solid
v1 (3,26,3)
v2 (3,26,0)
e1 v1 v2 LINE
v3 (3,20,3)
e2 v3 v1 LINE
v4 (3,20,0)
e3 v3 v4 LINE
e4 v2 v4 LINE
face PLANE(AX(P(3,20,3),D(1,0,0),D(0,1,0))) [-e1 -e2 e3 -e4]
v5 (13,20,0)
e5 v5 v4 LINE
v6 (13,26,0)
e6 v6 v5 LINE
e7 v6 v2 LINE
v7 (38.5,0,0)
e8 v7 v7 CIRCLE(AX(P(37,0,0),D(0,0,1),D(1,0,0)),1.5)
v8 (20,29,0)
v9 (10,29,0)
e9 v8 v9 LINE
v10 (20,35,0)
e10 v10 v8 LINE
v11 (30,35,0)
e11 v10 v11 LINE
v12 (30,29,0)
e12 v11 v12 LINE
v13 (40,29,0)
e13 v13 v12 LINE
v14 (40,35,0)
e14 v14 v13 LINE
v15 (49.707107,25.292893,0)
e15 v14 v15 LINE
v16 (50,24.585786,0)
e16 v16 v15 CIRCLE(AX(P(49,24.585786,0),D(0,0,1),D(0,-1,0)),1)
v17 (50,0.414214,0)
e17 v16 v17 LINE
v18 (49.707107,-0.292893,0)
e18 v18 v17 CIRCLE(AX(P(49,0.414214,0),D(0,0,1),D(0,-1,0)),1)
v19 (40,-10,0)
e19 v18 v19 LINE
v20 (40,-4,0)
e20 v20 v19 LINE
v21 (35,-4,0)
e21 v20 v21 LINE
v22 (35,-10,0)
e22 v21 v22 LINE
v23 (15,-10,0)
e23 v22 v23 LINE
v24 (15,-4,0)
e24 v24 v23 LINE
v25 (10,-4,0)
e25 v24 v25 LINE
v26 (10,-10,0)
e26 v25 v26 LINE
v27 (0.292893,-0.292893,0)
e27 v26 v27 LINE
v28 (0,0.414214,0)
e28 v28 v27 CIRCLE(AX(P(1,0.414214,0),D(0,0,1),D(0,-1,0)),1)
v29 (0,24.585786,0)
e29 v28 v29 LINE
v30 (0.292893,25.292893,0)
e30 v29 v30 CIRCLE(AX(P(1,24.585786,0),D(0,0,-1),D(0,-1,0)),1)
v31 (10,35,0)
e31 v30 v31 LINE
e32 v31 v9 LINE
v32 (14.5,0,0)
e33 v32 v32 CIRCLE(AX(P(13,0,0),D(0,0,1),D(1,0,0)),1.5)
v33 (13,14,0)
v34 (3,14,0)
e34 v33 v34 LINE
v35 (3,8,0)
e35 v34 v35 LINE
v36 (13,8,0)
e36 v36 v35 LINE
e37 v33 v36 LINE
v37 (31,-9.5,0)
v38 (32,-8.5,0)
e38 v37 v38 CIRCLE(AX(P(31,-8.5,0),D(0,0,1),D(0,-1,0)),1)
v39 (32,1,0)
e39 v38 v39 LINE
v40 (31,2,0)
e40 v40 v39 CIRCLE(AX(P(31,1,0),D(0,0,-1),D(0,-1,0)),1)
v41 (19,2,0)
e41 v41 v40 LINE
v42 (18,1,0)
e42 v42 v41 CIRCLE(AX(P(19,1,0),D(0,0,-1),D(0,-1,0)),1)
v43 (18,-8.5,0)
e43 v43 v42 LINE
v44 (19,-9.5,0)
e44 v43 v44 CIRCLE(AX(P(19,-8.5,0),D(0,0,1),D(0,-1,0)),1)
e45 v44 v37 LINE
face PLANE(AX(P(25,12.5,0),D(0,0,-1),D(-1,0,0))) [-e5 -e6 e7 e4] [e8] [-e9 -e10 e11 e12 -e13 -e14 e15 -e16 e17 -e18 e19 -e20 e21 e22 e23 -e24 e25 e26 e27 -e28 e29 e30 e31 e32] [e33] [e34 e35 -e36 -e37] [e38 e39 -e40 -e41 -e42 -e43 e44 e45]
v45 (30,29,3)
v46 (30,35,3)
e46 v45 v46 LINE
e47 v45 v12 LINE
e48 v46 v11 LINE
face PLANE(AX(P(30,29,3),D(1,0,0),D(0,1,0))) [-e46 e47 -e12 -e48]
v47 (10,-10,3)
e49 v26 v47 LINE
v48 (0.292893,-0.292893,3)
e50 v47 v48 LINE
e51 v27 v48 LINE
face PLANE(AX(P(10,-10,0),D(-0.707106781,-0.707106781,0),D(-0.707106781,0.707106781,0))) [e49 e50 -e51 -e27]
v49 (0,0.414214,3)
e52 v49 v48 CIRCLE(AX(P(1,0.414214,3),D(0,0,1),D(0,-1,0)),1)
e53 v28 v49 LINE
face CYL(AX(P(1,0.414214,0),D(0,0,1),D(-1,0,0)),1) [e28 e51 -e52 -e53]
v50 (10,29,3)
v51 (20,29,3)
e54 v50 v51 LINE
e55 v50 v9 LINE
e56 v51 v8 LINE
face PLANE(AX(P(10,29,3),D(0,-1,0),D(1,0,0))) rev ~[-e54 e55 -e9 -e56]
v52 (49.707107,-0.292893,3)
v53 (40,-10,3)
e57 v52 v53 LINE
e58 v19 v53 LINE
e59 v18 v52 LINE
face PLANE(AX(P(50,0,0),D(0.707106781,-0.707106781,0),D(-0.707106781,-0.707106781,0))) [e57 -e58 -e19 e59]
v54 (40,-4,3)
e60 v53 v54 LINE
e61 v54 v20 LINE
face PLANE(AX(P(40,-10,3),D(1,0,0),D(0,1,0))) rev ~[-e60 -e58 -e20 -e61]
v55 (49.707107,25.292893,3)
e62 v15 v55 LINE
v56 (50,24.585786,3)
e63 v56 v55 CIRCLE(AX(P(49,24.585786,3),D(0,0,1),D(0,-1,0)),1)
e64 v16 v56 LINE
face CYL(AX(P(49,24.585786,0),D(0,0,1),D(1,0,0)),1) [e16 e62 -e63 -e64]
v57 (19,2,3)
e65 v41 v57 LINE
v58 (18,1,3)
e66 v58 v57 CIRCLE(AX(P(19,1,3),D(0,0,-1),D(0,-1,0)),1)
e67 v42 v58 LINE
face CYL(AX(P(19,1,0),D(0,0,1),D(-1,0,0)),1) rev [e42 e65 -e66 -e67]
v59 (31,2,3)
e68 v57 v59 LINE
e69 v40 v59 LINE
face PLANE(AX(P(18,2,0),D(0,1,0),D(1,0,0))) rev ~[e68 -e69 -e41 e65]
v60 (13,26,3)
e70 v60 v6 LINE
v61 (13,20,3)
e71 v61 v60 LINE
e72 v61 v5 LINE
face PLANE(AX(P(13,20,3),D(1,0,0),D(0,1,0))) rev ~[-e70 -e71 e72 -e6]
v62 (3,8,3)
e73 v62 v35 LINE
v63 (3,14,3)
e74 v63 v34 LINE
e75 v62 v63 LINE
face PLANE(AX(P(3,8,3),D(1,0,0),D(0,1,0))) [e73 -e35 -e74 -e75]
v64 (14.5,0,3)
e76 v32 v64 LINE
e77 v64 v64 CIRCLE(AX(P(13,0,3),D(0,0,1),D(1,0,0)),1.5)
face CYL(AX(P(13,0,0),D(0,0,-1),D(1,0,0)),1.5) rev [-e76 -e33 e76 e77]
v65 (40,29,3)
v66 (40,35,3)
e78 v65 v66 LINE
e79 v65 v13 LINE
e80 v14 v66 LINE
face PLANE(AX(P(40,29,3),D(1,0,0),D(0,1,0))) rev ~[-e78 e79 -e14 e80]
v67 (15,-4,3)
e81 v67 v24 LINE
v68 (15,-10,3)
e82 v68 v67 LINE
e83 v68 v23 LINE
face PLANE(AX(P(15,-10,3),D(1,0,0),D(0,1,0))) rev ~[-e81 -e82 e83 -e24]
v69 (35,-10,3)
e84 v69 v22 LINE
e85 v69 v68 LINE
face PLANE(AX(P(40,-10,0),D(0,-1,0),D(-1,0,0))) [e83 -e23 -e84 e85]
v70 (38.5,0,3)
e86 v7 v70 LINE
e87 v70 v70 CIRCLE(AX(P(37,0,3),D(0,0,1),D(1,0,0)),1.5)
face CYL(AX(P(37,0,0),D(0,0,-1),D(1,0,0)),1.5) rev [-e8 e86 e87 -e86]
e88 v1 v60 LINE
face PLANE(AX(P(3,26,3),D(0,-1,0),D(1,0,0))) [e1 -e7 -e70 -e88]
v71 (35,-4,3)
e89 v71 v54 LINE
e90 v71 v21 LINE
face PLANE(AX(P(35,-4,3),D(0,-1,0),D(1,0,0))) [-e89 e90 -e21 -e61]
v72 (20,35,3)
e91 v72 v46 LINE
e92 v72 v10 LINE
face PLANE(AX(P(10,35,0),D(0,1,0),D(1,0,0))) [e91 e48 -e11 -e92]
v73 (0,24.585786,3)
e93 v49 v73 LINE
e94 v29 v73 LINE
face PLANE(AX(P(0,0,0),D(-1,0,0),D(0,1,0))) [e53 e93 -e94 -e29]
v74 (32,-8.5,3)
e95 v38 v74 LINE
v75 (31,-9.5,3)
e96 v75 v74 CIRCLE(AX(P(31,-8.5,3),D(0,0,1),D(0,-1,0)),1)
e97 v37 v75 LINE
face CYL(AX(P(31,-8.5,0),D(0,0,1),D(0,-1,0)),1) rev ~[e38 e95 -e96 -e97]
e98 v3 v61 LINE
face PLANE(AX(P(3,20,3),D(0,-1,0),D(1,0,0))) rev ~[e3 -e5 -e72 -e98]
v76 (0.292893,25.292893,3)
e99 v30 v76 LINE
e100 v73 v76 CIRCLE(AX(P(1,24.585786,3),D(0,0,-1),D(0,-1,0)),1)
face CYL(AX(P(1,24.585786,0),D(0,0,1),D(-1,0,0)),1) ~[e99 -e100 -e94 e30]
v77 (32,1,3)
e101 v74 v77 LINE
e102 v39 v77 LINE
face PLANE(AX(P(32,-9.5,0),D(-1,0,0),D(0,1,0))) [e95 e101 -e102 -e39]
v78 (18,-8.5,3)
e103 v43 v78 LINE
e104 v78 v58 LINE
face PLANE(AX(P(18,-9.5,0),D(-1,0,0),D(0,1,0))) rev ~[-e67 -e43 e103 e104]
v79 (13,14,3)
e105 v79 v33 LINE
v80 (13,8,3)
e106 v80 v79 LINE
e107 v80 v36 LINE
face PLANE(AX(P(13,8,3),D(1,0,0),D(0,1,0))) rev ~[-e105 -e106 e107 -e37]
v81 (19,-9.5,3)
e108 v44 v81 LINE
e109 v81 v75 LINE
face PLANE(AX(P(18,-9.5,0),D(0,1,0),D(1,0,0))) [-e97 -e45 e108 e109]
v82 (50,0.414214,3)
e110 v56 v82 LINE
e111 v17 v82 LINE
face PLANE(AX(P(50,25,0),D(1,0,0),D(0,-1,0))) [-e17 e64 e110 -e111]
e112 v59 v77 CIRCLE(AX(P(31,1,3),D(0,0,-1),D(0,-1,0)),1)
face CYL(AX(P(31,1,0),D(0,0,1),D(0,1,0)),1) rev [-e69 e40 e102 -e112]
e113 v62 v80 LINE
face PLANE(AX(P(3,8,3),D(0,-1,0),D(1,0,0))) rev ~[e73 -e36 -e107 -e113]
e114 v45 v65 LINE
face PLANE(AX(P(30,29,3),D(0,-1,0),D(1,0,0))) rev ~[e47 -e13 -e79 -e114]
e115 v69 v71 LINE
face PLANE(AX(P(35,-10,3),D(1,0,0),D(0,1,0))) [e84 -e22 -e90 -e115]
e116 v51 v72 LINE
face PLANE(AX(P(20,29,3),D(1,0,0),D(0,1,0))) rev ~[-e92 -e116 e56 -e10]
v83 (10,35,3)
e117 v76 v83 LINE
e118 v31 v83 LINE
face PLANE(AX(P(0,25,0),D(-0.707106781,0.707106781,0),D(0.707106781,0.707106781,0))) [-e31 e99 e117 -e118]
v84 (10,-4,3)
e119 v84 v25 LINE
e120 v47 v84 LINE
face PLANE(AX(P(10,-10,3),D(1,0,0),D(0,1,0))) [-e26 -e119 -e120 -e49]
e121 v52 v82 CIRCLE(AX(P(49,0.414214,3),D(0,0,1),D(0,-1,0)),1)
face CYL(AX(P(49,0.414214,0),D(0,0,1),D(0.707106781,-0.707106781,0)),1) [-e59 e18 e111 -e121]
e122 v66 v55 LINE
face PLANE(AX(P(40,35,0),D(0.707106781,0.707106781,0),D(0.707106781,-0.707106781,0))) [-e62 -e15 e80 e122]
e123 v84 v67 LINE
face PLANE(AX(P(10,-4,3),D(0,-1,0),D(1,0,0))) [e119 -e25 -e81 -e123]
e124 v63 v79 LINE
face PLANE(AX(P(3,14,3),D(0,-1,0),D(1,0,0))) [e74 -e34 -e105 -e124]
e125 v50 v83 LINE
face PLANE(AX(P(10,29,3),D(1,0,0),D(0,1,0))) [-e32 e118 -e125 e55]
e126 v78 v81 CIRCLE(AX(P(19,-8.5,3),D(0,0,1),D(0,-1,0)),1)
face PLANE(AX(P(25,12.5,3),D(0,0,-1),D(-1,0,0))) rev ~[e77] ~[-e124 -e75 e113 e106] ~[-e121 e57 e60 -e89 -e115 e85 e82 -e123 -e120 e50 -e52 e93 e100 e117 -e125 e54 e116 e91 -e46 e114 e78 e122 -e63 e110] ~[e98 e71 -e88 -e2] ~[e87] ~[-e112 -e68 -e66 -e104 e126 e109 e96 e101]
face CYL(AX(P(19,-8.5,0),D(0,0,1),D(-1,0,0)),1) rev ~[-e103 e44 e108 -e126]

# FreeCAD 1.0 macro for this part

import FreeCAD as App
import Part
import Sketcher


def edges_at(feature, points):
    """Names of the edges that pass closest to the given points."""
    edges = feature.Shape.Edges
    near = lambda p: min(range(len(edges)), key=lambda i: edges[i].distToShape(Part.Vertex(*p))[0])
    return sorted({f"Edge{near(p) + 1}" for p in points})

doc = App.newDocument("Part")
body = doc.addObject("PartDesign::Body", "Body")

sketch1 = doc.addObject("Sketcher::SketchObject", "Sketch")
body.addObject(sketch1)
sketch1.AttachmentSupport = (doc.XY_Plane, [""])
sketch1.MapMode = "FlatFace"
sketch1.addGeometry([
    Part.LineSegment(App.Vector(0, 25, 0), App.Vector(0, 0, 0)),
    Part.LineSegment(App.Vector(0, 0, 0), App.Vector(10, -10, 0)),
    Part.LineSegment(App.Vector(10, -10, 0), App.Vector(40, -10, 0)),
    Part.LineSegment(App.Vector(40, -10, 0), App.Vector(50, 0, 0)),
    Part.LineSegment(App.Vector(50, 0, 0), App.Vector(50, 25, 0)),
    Part.LineSegment(App.Vector(50, 25, 0), App.Vector(40, 35, 0)),
    Part.LineSegment(App.Vector(40, 35, 0), App.Vector(10, 35, 0)),
    Part.LineSegment(App.Vector(10, 35, 0), App.Vector(0, 25, 0)),
    Part.LineSegment(App.Vector(18, -9.5, 0), App.Vector(18, 2, 0)),
    Part.LineSegment(App.Vector(18, 2, 0), App.Vector(32, 2, 0)),
    Part.LineSegment(App.Vector(32, 2, 0), App.Vector(32, -9.5, 0)),
    Part.LineSegment(App.Vector(32, -9.5, 0), App.Vector(18, -9.5, 0)),
    Part.Circle(App.Vector(37, 0, 0), App.Vector(0, 0, 1), 1.5),
    Part.Circle(App.Vector(13, 0, 0), App.Vector(0, 0, 1), 1.5),
], False)
sketch1.addConstraint([
    Sketcher.Constraint("Coincident", 0, 2, 1, 1),
    Sketcher.Constraint("Coincident", 1, 2, 2, 1),
    Sketcher.Constraint("Coincident", 2, 2, 3, 1),
    Sketcher.Constraint("Coincident", 3, 2, 4, 1),
    Sketcher.Constraint("Coincident", 4, 2, 5, 1),
    Sketcher.Constraint("Coincident", 5, 2, 6, 1),
    Sketcher.Constraint("Coincident", 6, 2, 7, 1),
    Sketcher.Constraint("Coincident", 7, 2, 0, 1),
    Sketcher.Constraint("Coincident", 8, 2, 9, 1),
    Sketcher.Constraint("Coincident", 9, 2, 10, 1),
    Sketcher.Constraint("Coincident", 10, 2, 11, 1),
    Sketcher.Constraint("Coincident", 11, 2, 8, 1),
    Sketcher.Constraint("Vertical", 0),
    Sketcher.Constraint("Horizontal", 2),
    Sketcher.Constraint("Vertical", 4),
    Sketcher.Constraint("Horizontal", 6),
    Sketcher.Constraint("Vertical", 8),
    Sketcher.Constraint("Horizontal", 9),
    Sketcher.Constraint("Vertical", 10),
    Sketcher.Constraint("Horizontal", 11),
    Sketcher.Constraint("Coincident", 0, 2, -1, 1),
    Sketcher.Constraint("Equal", 12, 13),
    Sketcher.Constraint("PointOnObject", 12, 3, -1),
    Sketcher.Constraint("PointOnObject", 13, 3, -1),
    Sketcher.Constraint("PointOnObject", 3, 2, -1),
    Sketcher.Constraint("Perpendicular", 1, 3),
    Sketcher.Constraint("Perpendicular", 3, 5),
    Sketcher.Constraint("Perpendicular", 5, 7),
    Sketcher.Constraint("Horizontal", 4, 2, 7, 2),
    Sketcher.Constraint("Vertical", 2, 2, 5, 2),
    Sketcher.Constraint("Vertical", 1, 2, 6, 2),
    Sketcher.Constraint("Diameter", 12, 3.0),
    Sketcher.Constraint("DistanceX", 2, 1, 2, 2, 30.0),
    Sketcher.Constraint("DistanceX", 9, 1, 9, 2, 14.0),
    Sketcher.Constraint("DistanceY", 0, 2, 0, 1, 25.0),
    Sketcher.Constraint("DistanceY", 8, 1, 8, 2, 11.5),
    Sketcher.Constraint("DistanceX", -1, 1, 12, 3, 37.0),
    Sketcher.Constraint("DistanceX", -1, 1, 13, 3, 13.0),
    Sketcher.Constraint("DistanceX", -1, 1, 1, 2, 10.0),
    Sketcher.Constraint("DistanceX", -1, 1, 8, 2, 18.0),
    Sketcher.Constraint("DistanceY", -1, 1, 8, 2, 2.0),
])
pad1 = doc.addObject("PartDesign::Pad", "Pad")
body.addObject(pad1)
pad1.Profile = sketch1
pad1.Length = 3

sketch2 = doc.addObject("Sketcher::SketchObject", "Sketch001")
body.addObject(sketch2)
sketch2.AttachmentSupport = (doc.XY_Plane, [""])
sketch2.MapMode = "FlatFace"
sketch2.AttachmentOffset = App.Placement(App.Vector(0, 0, 3), App.Rotation())
sketch2.addGeometry([
    Part.LineSegment(App.Vector(10, 35, 0), App.Vector(10, 29, 0)),
    Part.LineSegment(App.Vector(10, 29, 0), App.Vector(20, 29, 0)),
    Part.LineSegment(App.Vector(20, 29, 0), App.Vector(20, 35, 0)),
    Part.LineSegment(App.Vector(20, 35, 0), App.Vector(10, 35, 0)),
    Part.LineSegment(App.Vector(30, 35, 0), App.Vector(30, 29, 0)),
    Part.LineSegment(App.Vector(30, 29, 0), App.Vector(40, 29, 0)),
    Part.LineSegment(App.Vector(40, 29, 0), App.Vector(40, 35, 0)),
    Part.LineSegment(App.Vector(40, 35, 0), App.Vector(30, 35, 0)),
    Part.LineSegment(App.Vector(10, -4, 0), App.Vector(10, -10, 0)),
    Part.LineSegment(App.Vector(10, -10, 0), App.Vector(15, -10, 0)),
    Part.LineSegment(App.Vector(15, -10, 0), App.Vector(15, -4, 0)),
    Part.LineSegment(App.Vector(15, -4, 0), App.Vector(10, -4, 0)),
    Part.LineSegment(App.Vector(35, -4, 0), App.Vector(35, -10, 0)),
    Part.LineSegment(App.Vector(35, -10, 0), App.Vector(40, -10, 0)),
    Part.LineSegment(App.Vector(40, -10, 0), App.Vector(40, -4, 0)),
    Part.LineSegment(App.Vector(40, -4, 0), App.Vector(35, -4, 0)),
], False)
sketch2.addConstraint([
    Sketcher.Constraint("Coincident", 0, 2, 1, 1),
    Sketcher.Constraint("Coincident", 1, 2, 2, 1),
    Sketcher.Constraint("Coincident", 2, 2, 3, 1),
    Sketcher.Constraint("Coincident", 3, 2, 0, 1),
    Sketcher.Constraint("Coincident", 4, 2, 5, 1),
    Sketcher.Constraint("Coincident", 5, 2, 6, 1),
    Sketcher.Constraint("Coincident", 6, 2, 7, 1),
    Sketcher.Constraint("Coincident", 7, 2, 4, 1),
    Sketcher.Constraint("Coincident", 8, 2, 9, 1),
    Sketcher.Constraint("Coincident", 9, 2, 10, 1),
    Sketcher.Constraint("Coincident", 10, 2, 11, 1),
    Sketcher.Constraint("Coincident", 11, 2, 8, 1),
    Sketcher.Constraint("Coincident", 12, 2, 13, 1),
    Sketcher.Constraint("Coincident", 13, 2, 14, 1),
    Sketcher.Constraint("Coincident", 14, 2, 15, 1),
    Sketcher.Constraint("Coincident", 15, 2, 12, 1),
    Sketcher.Constraint("Vertical", 0),
    Sketcher.Constraint("Horizontal", 1),
    Sketcher.Constraint("Vertical", 2),
    Sketcher.Constraint("Horizontal", 3),
    Sketcher.Constraint("Vertical", 4),
    Sketcher.Constraint("Horizontal", 5),
    Sketcher.Constraint("Vertical", 6),
    Sketcher.Constraint("Horizontal", 7),
    Sketcher.Constraint("Vertical", 8),
    Sketcher.Constraint("Horizontal", 9),
    Sketcher.Constraint("Vertical", 10),
    Sketcher.Constraint("Horizontal", 11),
    Sketcher.Constraint("Vertical", 12),
    Sketcher.Constraint("Horizontal", 13),
    Sketcher.Constraint("Vertical", 14),
    Sketcher.Constraint("Horizontal", 15),
    Sketcher.Constraint("Horizontal", 1, 2, 4, 2),
    Sketcher.Constraint("Horizontal", 3, 2, 6, 2),
    Sketcher.Constraint("Horizontal", 9, 2, 12, 2),
    Sketcher.Constraint("Horizontal", 11, 2, 14, 2),
    Sketcher.Constraint("Vertical", 3, 2, 8, 2),
    Sketcher.Constraint("Vertical", 6, 2, 13, 2),
    Sketcher.Constraint("Equal", 3, 5),
    Sketcher.Constraint("Equal", 11, 13),
    Sketcher.Constraint("Equal", 6, 8),
    Sketcher.Constraint("DistanceX", 1, 1, 1, 2, 10.0),
    Sketcher.Constraint("DistanceX", 9, 1, 9, 2, 5.0),
    Sketcher.Constraint("DistanceY", 0, 2, 0, 1, 6.0),
    Sketcher.Constraint("DistanceX", -1, 1, 0, 2, 10.0),
    Sketcher.Constraint("DistanceY", -1, 1, 0, 2, 29.0),
    Sketcher.Constraint("DistanceX", -1, 1, 4, 2, 30.0),
    Sketcher.Constraint("DistanceY", 8, 2, -1, 1, 10.0),
])
pocket1 = doc.addObject("PartDesign::Pocket", "Pocket")
body.addObject(pocket1)
pocket1.Profile = sketch2
pocket1.Type = "ThroughAll"

sketch3 = doc.addObject("Sketcher::SketchObject", "Sketch002")
body.addObject(sketch3)
sketch3.AttachmentSupport = (doc.XY_Plane, [""])
sketch3.MapMode = "FlatFace"
sketch3.AttachmentOffset = App.Placement(App.Vector(0, 0, 3), App.Rotation())
sketch3.addGeometry([
    Part.LineSegment(App.Vector(3, 14, 0), App.Vector(3, 8, 0)),
    Part.LineSegment(App.Vector(3, 8, 0), App.Vector(13, 8, 0)),
    Part.LineSegment(App.Vector(13, 8, 0), App.Vector(13, 14, 0)),
    Part.LineSegment(App.Vector(13, 14, 0), App.Vector(3, 14, 0)),
    Part.LineSegment(App.Vector(3, 26, 0), App.Vector(3, 20, 0)),
    Part.LineSegment(App.Vector(3, 20, 0), App.Vector(13, 20, 0)),
    Part.LineSegment(App.Vector(13, 20, 0), App.Vector(13, 26, 0)),
    Part.LineSegment(App.Vector(13, 26, 0), App.Vector(3, 26, 0)),
], False)
sketch3.addConstraint([
    Sketcher.Constraint("Coincident", 0, 2, 1, 1),
    Sketcher.Constraint("Coincident", 1, 2, 2, 1),
    Sketcher.Constraint("Coincident", 2, 2, 3, 1),
    Sketcher.Constraint("Coincident", 3, 2, 0, 1),
    Sketcher.Constraint("Coincident", 4, 2, 5, 1),
    Sketcher.Constraint("Coincident", 5, 2, 6, 1),
    Sketcher.Constraint("Coincident", 6, 2, 7, 1),
    Sketcher.Constraint("Coincident", 7, 2, 4, 1),
    Sketcher.Constraint("Vertical", 0),
    Sketcher.Constraint("Horizontal", 1),
    Sketcher.Constraint("Vertical", 2),
    Sketcher.Constraint("Horizontal", 3),
    Sketcher.Constraint("Vertical", 4),
    Sketcher.Constraint("Horizontal", 5),
    Sketcher.Constraint("Vertical", 6),
    Sketcher.Constraint("Horizontal", 7),
    Sketcher.Constraint("Vertical", 3, 2, 4, 2),
    Sketcher.Constraint("Vertical", 2, 2, 5, 2),
    Sketcher.Constraint("Equal", 2, 4),
    Sketcher.Constraint("DistanceX", 1, 1, 1, 2, 10.0),
    Sketcher.Constraint("DistanceY", 0, 2, 0, 1, 6.0),
    Sketcher.Constraint("DistanceX", -1, 1, 0, 2, 3.0),
    Sketcher.Constraint("DistanceY", -1, 1, 0, 2, 8.0),
    Sketcher.Constraint("DistanceY", -1, 1, 4, 2, 20.0),
])
pocket2 = doc.addObject("PartDesign::Pocket", "Pocket001")
body.addObject(pocket2)
pocket2.Profile = sketch3
pocket2.Type = "ThroughAll"
doc.recompute()

fillet = doc.addObject("PartDesign::Fillet", "Fillet")
body.addObject(fillet)
fillet.Base = (pocket2, edges_at(pocket2, [
    (0, 0, 1.5),
    (0, 25, 1.5),
    (50, 25, 1.5),
    (50, 0, 1.5),
    (18, 2, 1.5),
    (18, -9.5, 1.5),
    (32, -9.5, 1.5),
    (32, 2, 1.5),
]))
fillet.Radius = 1

doc.recompute()
